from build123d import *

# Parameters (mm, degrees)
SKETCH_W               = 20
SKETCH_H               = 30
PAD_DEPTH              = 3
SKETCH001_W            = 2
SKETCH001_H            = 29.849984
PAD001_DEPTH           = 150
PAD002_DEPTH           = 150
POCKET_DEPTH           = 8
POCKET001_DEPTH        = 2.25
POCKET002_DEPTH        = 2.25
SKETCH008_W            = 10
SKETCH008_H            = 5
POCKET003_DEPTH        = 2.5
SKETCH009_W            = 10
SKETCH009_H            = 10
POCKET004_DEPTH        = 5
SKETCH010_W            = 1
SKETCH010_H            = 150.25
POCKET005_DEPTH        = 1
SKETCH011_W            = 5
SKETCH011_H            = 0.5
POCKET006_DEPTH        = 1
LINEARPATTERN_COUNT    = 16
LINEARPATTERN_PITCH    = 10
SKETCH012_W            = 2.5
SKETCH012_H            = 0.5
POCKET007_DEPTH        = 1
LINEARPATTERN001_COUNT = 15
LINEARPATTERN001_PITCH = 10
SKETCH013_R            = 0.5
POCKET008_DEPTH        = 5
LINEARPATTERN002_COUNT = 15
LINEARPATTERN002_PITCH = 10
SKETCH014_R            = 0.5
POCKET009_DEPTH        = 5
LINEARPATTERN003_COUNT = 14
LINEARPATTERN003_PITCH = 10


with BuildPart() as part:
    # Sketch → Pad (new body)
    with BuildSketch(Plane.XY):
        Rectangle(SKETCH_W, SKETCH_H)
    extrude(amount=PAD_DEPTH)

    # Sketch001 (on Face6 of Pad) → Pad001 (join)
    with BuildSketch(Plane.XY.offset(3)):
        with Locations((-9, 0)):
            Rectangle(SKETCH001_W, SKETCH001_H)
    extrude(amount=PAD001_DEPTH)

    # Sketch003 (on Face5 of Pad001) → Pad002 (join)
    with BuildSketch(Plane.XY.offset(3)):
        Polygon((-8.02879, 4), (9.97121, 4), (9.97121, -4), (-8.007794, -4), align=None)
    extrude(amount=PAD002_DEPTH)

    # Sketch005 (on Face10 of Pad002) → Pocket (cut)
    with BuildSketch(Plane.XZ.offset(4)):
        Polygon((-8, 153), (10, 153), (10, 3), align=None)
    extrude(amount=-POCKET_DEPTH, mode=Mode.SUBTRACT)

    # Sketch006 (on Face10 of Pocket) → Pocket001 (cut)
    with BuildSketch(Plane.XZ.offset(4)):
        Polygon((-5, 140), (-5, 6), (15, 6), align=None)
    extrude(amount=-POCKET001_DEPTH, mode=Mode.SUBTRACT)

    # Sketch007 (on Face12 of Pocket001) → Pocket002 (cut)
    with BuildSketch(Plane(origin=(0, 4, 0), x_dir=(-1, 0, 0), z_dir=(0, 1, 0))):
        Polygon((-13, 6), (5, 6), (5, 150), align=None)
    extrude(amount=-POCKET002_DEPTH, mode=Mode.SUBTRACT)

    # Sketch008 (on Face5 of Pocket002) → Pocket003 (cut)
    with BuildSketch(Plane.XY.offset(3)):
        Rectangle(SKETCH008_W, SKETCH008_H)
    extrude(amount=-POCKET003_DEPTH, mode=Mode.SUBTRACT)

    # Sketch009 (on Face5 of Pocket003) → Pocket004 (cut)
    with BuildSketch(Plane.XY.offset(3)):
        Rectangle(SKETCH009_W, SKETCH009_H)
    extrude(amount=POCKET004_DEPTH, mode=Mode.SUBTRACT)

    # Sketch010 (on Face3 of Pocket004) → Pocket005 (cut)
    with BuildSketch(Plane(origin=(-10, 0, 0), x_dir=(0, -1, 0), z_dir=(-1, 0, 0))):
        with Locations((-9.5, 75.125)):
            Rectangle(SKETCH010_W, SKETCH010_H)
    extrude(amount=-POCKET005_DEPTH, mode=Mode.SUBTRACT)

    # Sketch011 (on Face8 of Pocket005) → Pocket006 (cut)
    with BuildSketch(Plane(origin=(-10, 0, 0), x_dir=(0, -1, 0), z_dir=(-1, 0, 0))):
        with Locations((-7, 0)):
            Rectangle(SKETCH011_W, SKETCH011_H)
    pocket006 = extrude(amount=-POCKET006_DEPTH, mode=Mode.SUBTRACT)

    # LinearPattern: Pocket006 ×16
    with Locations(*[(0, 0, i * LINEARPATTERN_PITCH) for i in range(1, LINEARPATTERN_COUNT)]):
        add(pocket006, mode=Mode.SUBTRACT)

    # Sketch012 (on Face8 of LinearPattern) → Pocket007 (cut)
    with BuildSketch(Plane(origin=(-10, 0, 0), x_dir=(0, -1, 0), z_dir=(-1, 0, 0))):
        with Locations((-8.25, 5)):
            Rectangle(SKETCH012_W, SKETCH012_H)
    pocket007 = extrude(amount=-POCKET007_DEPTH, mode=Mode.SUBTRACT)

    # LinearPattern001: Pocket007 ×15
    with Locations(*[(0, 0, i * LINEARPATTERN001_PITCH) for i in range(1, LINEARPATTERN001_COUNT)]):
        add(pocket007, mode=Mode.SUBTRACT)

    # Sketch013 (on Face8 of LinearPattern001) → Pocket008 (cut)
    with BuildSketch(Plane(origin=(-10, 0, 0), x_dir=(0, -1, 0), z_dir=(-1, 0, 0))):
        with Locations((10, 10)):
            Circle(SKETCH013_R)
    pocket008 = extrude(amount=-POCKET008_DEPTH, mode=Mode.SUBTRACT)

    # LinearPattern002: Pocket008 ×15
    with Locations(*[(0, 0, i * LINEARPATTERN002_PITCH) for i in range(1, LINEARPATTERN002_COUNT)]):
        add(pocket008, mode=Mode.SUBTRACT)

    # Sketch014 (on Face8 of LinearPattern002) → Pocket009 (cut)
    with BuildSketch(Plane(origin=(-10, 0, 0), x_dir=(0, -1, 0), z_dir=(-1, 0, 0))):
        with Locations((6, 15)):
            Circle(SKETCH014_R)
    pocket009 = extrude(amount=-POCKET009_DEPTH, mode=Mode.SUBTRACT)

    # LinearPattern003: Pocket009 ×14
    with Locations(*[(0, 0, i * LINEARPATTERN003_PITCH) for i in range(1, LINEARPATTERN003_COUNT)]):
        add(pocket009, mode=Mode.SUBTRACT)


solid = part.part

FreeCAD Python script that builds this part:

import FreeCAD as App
import Part
import Sketcher
from FreeCAD import Vector

doc = App.newDocument("Part")
body = doc.addObject("PartDesign::Body", "Body")

sketch1 = body.newObject("Sketcher::SketchObject", "Sketch")
sketch1.AttachmentSupport = (doc.getObject("XY_Plane"), [""])
sketch1.MapMode = "FlatFace"
sketch1.addGeometry([
    Part.LineSegment(Vector(-10, 15, 0), Vector(-10, -15, 0)),
    Part.LineSegment(Vector(-10, -15, 0), Vector(10, -15, 0)),
    Part.LineSegment(Vector(10, -15, 0), Vector(10, 15, 0)),
    Part.LineSegment(Vector(10, 15, 0), Vector(-10, 15, 0)),
], False)
sketch1.addConstraint([
    Sketcher.Constraint("Coincident", 0, 2, 1, 1),
    Sketcher.Constraint("Coincident", 1, 2, 2, 1),
    Sketcher.Constraint("Coincident", 2, 2, 3, 1),
    Sketcher.Constraint("Coincident", 3, 2, 0, 1),
    Sketcher.Constraint("Vertical", 0),
    Sketcher.Constraint("Horizontal", 1),
    Sketcher.Constraint("Vertical", 2),
    Sketcher.Constraint("Horizontal", 3),
    Sketcher.Constraint("Symmetric", 0, 2, 2, 2, -1, 1),
    Sketcher.Constraint("DistanceX", 1, 1, 1, 2, 20.0),
    Sketcher.Constraint("DistanceY", 0, 2, 0, 1, 30.0),
])
pad1 = body.newObject("PartDesign::Pad", "Pad")
pad1.Profile = sketch1
pad1.Length = 3

sketch2 = body.newObject("Sketcher::SketchObject", "Sketch001")
sketch2.AttachmentSupport = (doc.getObject("XY_Plane"), [""])
sketch2.MapMode = "FlatFace"
sketch2.AttachmentOffset = App.Placement(Vector(0, 0, 3), App.Rotation())
sketch2.addGeometry([
    Part.LineSegment(Vector(-10, 14.9, 0), Vector(-10, -14.9, 0)),
    Part.LineSegment(Vector(-10, -14.9, 0), Vector(-8, -14.9, 0)),
    Part.LineSegment(Vector(-8, -14.9, 0), Vector(-8, 14.9, 0)),
    Part.LineSegment(Vector(-8, 14.9, 0), Vector(-10, 14.9, 0)),
], False)
sketch2.addConstraint([
    Sketcher.Constraint("Coincident", 0, 2, 1, 1),
    Sketcher.Constraint("Coincident", 1, 2, 2, 1),
    Sketcher.Constraint("Coincident", 2, 2, 3, 1),
    Sketcher.Constraint("Coincident", 3, 2, 0, 1),
    Sketcher.Constraint("Vertical", 0),
    Sketcher.Constraint("Horizontal", 1),
    Sketcher.Constraint("Vertical", 2),
    Sketcher.Constraint("Horizontal", 3),
    Sketcher.Constraint("DistanceX", 1, 1, 1, 2, 2.0),
    Sketcher.Constraint("DistanceX", 0, 2, -1, 1, 10.0),
    Sketcher.Constraint("DistanceY", 0, 2, 0, 1, 29.849984),
    Sketcher.Constraint("DistanceY", 0, 2, -1, 1, 14.924992),
])
pad2 = body.newObject("PartDesign::Pad", "Pad001")
pad2.Profile = sketch2
pad2.Length = 150

sketch3 = body.newObject("Sketcher::SketchObject", "Sketch002")
sketch3.AttachmentSupport = (doc.getObject("XY_Plane"), [""])
sketch3.MapMode = "FlatFace"
sketch3.AttachmentOffset = App.Placement(Vector(0, 0, 3), App.Rotation())
sketch3.addGeometry([
    Part.LineSegment(Vector(10, 4, 0), Vector(-8, 4, 0)),
    Part.LineSegment(Vector(-8, 4, 0), Vector(-8, -4, 0)),
    Part.LineSegment(Vector(-8, -4, 0), Vector(10, -4, 0)),
    Part.LineSegment(Vector(10, -4, 0), Vector(10, 4, 0)),
], False)
sketch3.addConstraint([
    Sketcher.Constraint("Coincident", 0, 2, 1, 1),
    Sketcher.Constraint("Coincident", 1, 2, 2, 1),
    Sketcher.Constraint("Coincident", 2, 2, 3, 1),
    Sketcher.Constraint("Coincident", 3, 2, 0, 1),
    Sketcher.Constraint("Horizontal", 0),
    Sketcher.Constraint("Horizontal", 2),
    Sketcher.Constraint("Vertical", 3),
    Sketcher.Constraint("DistanceX", 0, 2, 0, 1, 18.0),
    Sketcher.Constraint("DistanceY", 3, 1, 3, 2, 8.0),
    Sketcher.Constraint("DistanceY", -1, 1, 0, 2, 4.0),
    Sketcher.Constraint("DistanceX", 2, 1, 2, 2, 17.979004),
    Sketcher.Constraint("DistanceX", 0, 2, -1, 1, 8.02879),
])
pad3 = body.newObject("PartDesign::Pad", "Pad002")
pad3.Profile = sketch3
pad3.Length = 150

sketch4 = body.newObject("Sketcher::SketchObject", "Sketch003")
sketch4.AttachmentSupport = (doc.getObject("XZ_Plane"), [""])
sketch4.MapMode = "FlatFace"
sketch4.AttachmentOffset = App.Placement(Vector(0, 0, 4), App.Rotation())
sketch4.addGeometry([
    Part.LineSegment(Vector(10, 153, 0), Vector(-8, 153, 0)),
    Part.LineSegment(Vector(-8, 153, 0), Vector(10, 3, 0)),
    Part.LineSegment(Vector(10, 3, 0), Vector(10, 153, 0)),
], False)
sketch4.addConstraint([
    Sketcher.Constraint("Coincident", 0, 2, 1, 1),
    Sketcher.Constraint("Coincident", 1, 2, 2, 1),
    Sketcher.Constraint("Coincident", 2, 2, 0, 1),
    Sketcher.Constraint("Horizontal", 0),
    Sketcher.Constraint("Vertical", 2),
    Sketcher.Constraint("DistanceX", 0, 2, 0, 1, 18.0),
    Sketcher.Constraint("DistanceY", 2, 1, 2, 2, 150.0),
    Sketcher.Constraint("DistanceX", 0, 2, -1, 1, 8.0),
    Sketcher.Constraint("DistanceY", -1, 1, 0, 2, 153.0),
])
pocket1 = body.newObject("PartDesign::Pocket", "Pocket")
pocket1.Profile = sketch4
pocket1.Length = 8

sketch5 = body.newObject("Sketcher::SketchObject", "Sketch004")
sketch5.AttachmentSupport = (doc.getObject("XZ_Plane"), [""])
sketch5.MapMode = "FlatFace"
sketch5.AttachmentOffset = App.Placement(Vector(0, 0, 4), App.Rotation())
sketch5.addGeometry([
    Part.LineSegment(Vector(-5, 140, 0), Vector(-5, 6, 0)),
    Part.LineSegment(Vector(-5, 6, 0), Vector(15, 6, 0)),
    Part.LineSegment(Vector(15, 6, 0), Vector(-5, 140, 0)),
], False)
sketch5.addConstraint([
    Sketcher.Constraint("Coincident", 0, 2, 1, 1),
    Sketcher.Constraint("Coincident", 1, 2, 2, 1),
    Sketcher.Constraint("Coincident", 2, 2, 0, 1),
    Sketcher.Constraint("Vertical", 0),
    Sketcher.Constraint("Horizontal", 1),
    Sketcher.Constraint("DistanceX", 1, 1, 1, 2, 20.0),
    Sketcher.Constraint("DistanceY", 0, 2, 0, 1, 134.0),
    Sketcher.Constraint("DistanceX", 0, 2, -1, 1, 5.0),
    Sketcher.Constraint("DistanceY", -1, 1, 0, 2, 6.0),
])
pocket2 = body.newObject("PartDesign::Pocket", "Pocket001")
pocket2.Profile = sketch5
pocket2.Length = 2.25

sketch6 = body.newObject("Sketcher::SketchObject", "Sketch005")
sketch6.AttachmentSupport = (doc.getObject("XZ_Plane"), [""])
sketch6.MapMode = "FlatFace"
sketch6.AttachmentOffset = App.Placement(Vector(0, 0, -4), App.Rotation())
sketch6.addGeometry([
    Part.LineSegment(Vector(13, 6, 0), Vector(-5, 6, 0)),
    Part.LineSegment(Vector(-5, 6, 0), Vector(-5, 150, 0)),
    Part.LineSegment(Vector(-5, 150, 0), Vector(13, 6, 0)),
], False)
sketch6.addConstraint([
    Sketcher.Constraint("Coincident", 0, 2, 1, 1),
    Sketcher.Constraint("Coincident", 1, 2, 2, 1),
    Sketcher.Constraint("Coincident", 2, 2, 0, 1),
    Sketcher.Constraint("Horizontal", 0),
    Sketcher.Constraint("Vertical", 1),
    Sketcher.Constraint("DistanceX", 0, 2, 0, 1, 18.0),
    Sketcher.Constraint("DistanceY", 1, 1, 1, 2, 144.0),
    Sketcher.Constraint("DistanceX", 0, 2, -1, 1, 5.0),
    Sketcher.Constraint("DistanceY", -1, 1, 0, 2, 6.0),
])
pocket3 = body.newObject("PartDesign::Pocket", "Pocket002")
pocket3.Profile = sketch6
pocket3.Length = 2.25
pocket3.Reversed = True

sketch7 = body.newObject("Sketcher::SketchObject", "Sketch006")
sketch7.AttachmentSupport = (doc.getObject("XY_Plane"), [""])
sketch7.MapMode = "FlatFace"
sketch7.AttachmentOffset = App.Placement(Vector(0, 0, 3), App.Rotation())
sketch7.addGeometry([
    Part.LineSegment(Vector(-5, 2, 0), Vector(-5, -2, 0)),
    Part.LineSegment(Vector(-5, -2, 0), Vector(5, -2, 0)),
    Part.LineSegment(Vector(5, -2, 0), Vector(5, 2, 0)),
    Part.LineSegment(Vector(5, 2, 0), Vector(-5, 2, 0)),
], False)
sketch7.addConstraint([
    Sketcher.Constraint("Coincident", 0, 2, 1, 1),
    Sketcher.Constraint("Coincident", 1, 2, 2, 1),
    Sketcher.Constraint("Coincident", 2, 2, 3, 1),
    Sketcher.Constraint("Coincident", 3, 2, 0, 1),
    Sketcher.Constraint("Vertical", 0),
    Sketcher.Constraint("Horizontal", 1),
    Sketcher.Constraint("Vertical", 2),
    Sketcher.Constraint("Horizontal", 3),
    Sketcher.Constraint("Symmetric", 0, 2, 2, 2, -1, 1),
    Sketcher.Constraint("DistanceX", 1, 1, 1, 2, 10.0),
    Sketcher.Constraint("DistanceY", 0, 2, 0, 1, 5.0),
])
pocket4 = body.newObject("PartDesign::Pocket", "Pocket003")
pocket4.Profile = sketch7
pocket4.Length = 2.5

sketch8 = body.newObject("Sketcher::SketchObject", "Sketch007")
sketch8.AttachmentSupport = (doc.getObject("XY_Plane"), [""])
sketch8.MapMode = "FlatFace"
sketch8.AttachmentOffset = App.Placement(Vector(0, 0, 3), App.Rotation())
sketch8.addGeometry([
    Part.LineSegment(Vector(-5, 5, 0), Vector(-5, -5, 0)),
    Part.LineSegment(Vector(-5, -5, 0), Vector(5, -5, 0)),
    Part.LineSegment(Vector(5, -5, 0), Vector(5, 5, 0)),
    Part.LineSegment(Vector(5, 5, 0), Vector(-5, 5, 0)),
], False)
sketch8.addConstraint([
    Sketcher.Constraint("Coincident", 0, 2, 1, 1),
    Sketcher.Constraint("Coincident", 1, 2, 2, 1),
    Sketcher.Constraint("Coincident", 2, 2, 3, 1),
    Sketcher.Constraint("Coincident", 3, 2, 0, 1),
    Sketcher.Constraint("Vertical", 0),
    Sketcher.Constraint("Horizontal", 1),
    Sketcher.Constraint("Vertical", 2),
    Sketcher.Constraint("Horizontal", 3),
    Sketcher.Constraint("Symmetric", 0, 2, 2, 2, -1, 1),
    Sketcher.Constraint("Equal", 3, 0),
    Sketcher.Constraint("DistanceX", 1, 1, 1, 2, 10.0),
])
pocket5 = body.newObject("PartDesign::Pocket", "Pocket004")
pocket5.Profile = sketch8
pocket5.Length = 5
pocket5.Reversed = True

sketch9 = body.newObject("Sketcher::SketchObject", "Sketch008")
sketch9.AttachmentSupport = (doc.getObject("YZ_Plane"), [""])
sketch9.MapMode = "FlatFace"
sketch9.AttachmentOffset = App.Placement(Vector(0, 0, -10), App.Rotation())
sketch9.addGeometry([
    Part.LineSegment(Vector(10, 150.2, 0), Vector(10, 0, 0)),
    Part.LineSegment(Vector(10, 0, 0), Vector(9, 0, 0)),
    Part.LineSegment(Vector(9, 0, 0), Vector(9, 150.2, 0)),
    Part.LineSegment(Vector(9, 150.2, 0), Vector(10, 150.2, 0)),
], False)
sketch9.addConstraint([
    Sketcher.Constraint("Coincident", 0, 2, 1, 1),
    Sketcher.Constraint("Coincident", 1, 2, 2, 1),
    Sketcher.Constraint("Coincident", 2, 2, 3, 1),
    Sketcher.Constraint("Coincident", 3, 2, 0, 1),
    Sketcher.Constraint("Vertical", 0),
    Sketcher.Constraint("Horizontal", 1),
    Sketcher.Constraint("Vertical", 2),
    Sketcher.Constraint("Horizontal", 3),
    Sketcher.Constraint("PointOnObject", 0, 2, -1),
    Sketcher.Constraint("DistanceX", 1, 2, 1, 1, 1.0),
    Sketcher.Constraint("DistanceX", -1, 1, 0, 2, 10.0),
    Sketcher.Constraint("DistanceY", 0, 2, 0, 1, 150.25),
])
pocket6 = body.newObject("PartDesign::Pocket", "Pocket005")
pocket6.Profile = sketch9
pocket6.Length = 1
pocket6.Reversed = True

sketch10 = body.newObject("Sketcher::SketchObject", "Sketch009")
sketch10.AttachmentSupport = (doc.getObject("YZ_Plane"), [""])
sketch10.MapMode = "FlatFace"
sketch10.AttachmentOffset = App.Placement(Vector(0, 0, -10), App.Rotation())
sketch10.addGeometry([
    Part.LineSegment(Vector(9.5, 0.2, 0), Vector(9.5, -0.2, 0)),
    Part.LineSegment(Vector(9.5, -0.2, 0), Vector(4.5, -0.2, 0)),
    Part.LineSegment(Vector(4.5, -0.2, 0), Vector(4.5, 0.2, 0)),
    Part.LineSegment(Vector(4.5, 0.2, 0), Vector(9.5, 0.2, 0)),
], False)
sketch10.addConstraint([
    Sketcher.Constraint("Coincident", 0, 2, 1, 1),
    Sketcher.Constraint("Coincident", 1, 2, 2, 1),
    Sketcher.Constraint("Coincident", 2, 2, 3, 1),
    Sketcher.Constraint("Coincident", 3, 2, 0, 1),
    Sketcher.Constraint("Vertical", 0),
    Sketcher.Constraint("Horizontal", 1),
    Sketcher.Constraint("Vertical", 2),
    Sketcher.Constraint("Horizontal", 3),
    Sketcher.Constraint("DistanceX", 1, 2, 1, 1, 5.0),
    Sketcher.Constraint("DistanceY", 0, 2, 0, 1, 0.5),
    Sketcher.Constraint("DistanceX", -1, 1, 0, 2, 9.5),
    Sketcher.Constraint("DistanceY", 0, 2, -1, 1, 0.25),
])
pocket7 = body.newObject("PartDesign::Pocket", "Pocket006")
pocket7.Profile = sketch10
pocket7.Length = 1
pocket7.Reversed = True
doc.recompute()

linearpattern = body.newObject("PartDesign::LinearPattern", "LinearPattern")
linearpattern.Originals = [pocket7]
linearpattern.Direction = (doc.getObject("Z_Axis"), [""])
linearpattern.Mode = "offset"
linearpattern.Offset = 10
linearpattern.Occurrences = 16
body.Tip = linearpattern

sketch11 = body.newObject("Sketcher::SketchObject", "Sketch010")
sketch11.AttachmentSupport = (doc.getObject("YZ_Plane"), [""])
sketch11.MapMode = "FlatFace"
sketch11.AttachmentOffset = App.Placement(Vector(0, 0, -10), App.Rotation())
sketch11.addGeometry([
    Part.LineSegment(Vector(9.5, 5.2, 0), Vector(9.5, 4.8, 0)),
    Part.LineSegment(Vector(9.5, 4.8, 0), Vector(7, 4.8, 0)),
    Part.LineSegment(Vector(7, 4.8, 0), Vector(7, 5.2, 0)),
    Part.LineSegment(Vector(7, 5.2, 0), Vector(9.5, 5.2, 0)),
], False)
sketch11.addConstraint([
    Sketcher.Constraint("Coincident", 0, 2, 1, 1),
    Sketcher.Constraint("Coincident", 1, 2, 2, 1),
    Sketcher.Constraint("Coincident", 2, 2, 3, 1),
    Sketcher.Constraint("Coincident", 3, 2, 0, 1),
    Sketcher.Constraint("Vertical", 0),
    Sketcher.Constraint("Horizontal", 1),
    Sketcher.Constraint("Vertical", 2),
    Sketcher.Constraint("Horizontal", 3),
    Sketcher.Constraint("DistanceX", 1, 2, 1, 1, 2.5),
    Sketcher.Constraint("DistanceY", 0, 2, 0, 1, 0.5),
    Sketcher.Constraint("DistanceX", -1, 1, 1, 2, 7.0),
    Sketcher.Constraint("DistanceY", -1, 1, 0, 2, 4.75),
])
pocket8 = body.newObject("PartDesign::Pocket", "Pocket007")
pocket8.Profile = sketch11
pocket8.Length = 1
pocket8.Reversed = True
doc.recompute()

linearpattern2 = body.newObject("PartDesign::LinearPattern", "LinearPattern001")
linearpattern2.Originals = [pocket8]
linearpattern2.Direction = (doc.getObject("Z_Axis"), [""])
linearpattern2.Mode = "offset"
linearpattern2.Offset = 10
linearpattern2.Occurrences = 15
body.Tip = linearpattern2

sketch12 = body.newObject("Sketcher::SketchObject", "Sketch011")
sketch12.AttachmentSupport = (doc.getObject("YZ_Plane"), [""])
sketch12.MapMode = "FlatFace"
sketch12.AttachmentOffset = App.Placement(Vector(0, 0, -10), App.Rotation())
sketch12.addGeometry(Part.Circle(Vector(-10, 10, 0), Vector(0, 0, 1), 0.5), False)
sketch12.addConstraint([
    Sketcher.Constraint("Diameter", 0, 1.0),
    Sketcher.Constraint("DistanceX", 0, 3, -1, 1, 10.0),
    Sketcher.Constraint("DistanceY", -1, 1, 0, 3, 10.0),
])
pocket9 = body.newObject("PartDesign::Pocket", "Pocket008")
pocket9.Profile = sketch12
pocket9.Length = 5
pocket9.Reversed = True
doc.recompute()

linearpattern3 = body.newObject("PartDesign::LinearPattern", "LinearPattern002")
linearpattern3.Originals = [pocket9]
linearpattern3.Direction = (doc.getObject("Z_Axis"), [""])
linearpattern3.Mode = "offset"
linearpattern3.Offset = 10
linearpattern3.Occurrences = 15
body.Tip = linearpattern3

sketch13 = body.newObject("Sketcher::SketchObject", "Sketch012")
sketch13.AttachmentSupport = (doc.getObject("YZ_Plane"), [""])
sketch13.MapMode = "FlatFace"
sketch13.AttachmentOffset = App.Placement(Vector(0, 0, -10), App.Rotation())
sketch13.addGeometry(Part.Circle(Vector(-6, 15, 0), Vector(0, 0, 1), 0.5), False)
sketch13.addConstraint([
    Sketcher.Constraint("Diameter", 0, 1.0),
    Sketcher.Constraint("DistanceX", 0, 3, -1, 1, 6.0),
    Sketcher.Constraint("DistanceY", -1, 1, 0, 3, 15.0),
])
pocket10 = body.newObject("PartDesign::Pocket", "Pocket009")
pocket10.Profile = sketch13
pocket10.Length = 5
pocket10.Reversed = True
doc.recompute()

linearpattern4 = body.newObject("PartDesign::LinearPattern", "LinearPattern003")
linearpattern4.Originals = [pocket10]
linearpattern4.Direction = (doc.getObject("Z_Axis"), [""])
linearpattern4.Mode = "offset"
linearpattern4.Offset = 10
linearpattern4.Occurrences = 14
body.Tip = linearpattern4

doc.recompute()
